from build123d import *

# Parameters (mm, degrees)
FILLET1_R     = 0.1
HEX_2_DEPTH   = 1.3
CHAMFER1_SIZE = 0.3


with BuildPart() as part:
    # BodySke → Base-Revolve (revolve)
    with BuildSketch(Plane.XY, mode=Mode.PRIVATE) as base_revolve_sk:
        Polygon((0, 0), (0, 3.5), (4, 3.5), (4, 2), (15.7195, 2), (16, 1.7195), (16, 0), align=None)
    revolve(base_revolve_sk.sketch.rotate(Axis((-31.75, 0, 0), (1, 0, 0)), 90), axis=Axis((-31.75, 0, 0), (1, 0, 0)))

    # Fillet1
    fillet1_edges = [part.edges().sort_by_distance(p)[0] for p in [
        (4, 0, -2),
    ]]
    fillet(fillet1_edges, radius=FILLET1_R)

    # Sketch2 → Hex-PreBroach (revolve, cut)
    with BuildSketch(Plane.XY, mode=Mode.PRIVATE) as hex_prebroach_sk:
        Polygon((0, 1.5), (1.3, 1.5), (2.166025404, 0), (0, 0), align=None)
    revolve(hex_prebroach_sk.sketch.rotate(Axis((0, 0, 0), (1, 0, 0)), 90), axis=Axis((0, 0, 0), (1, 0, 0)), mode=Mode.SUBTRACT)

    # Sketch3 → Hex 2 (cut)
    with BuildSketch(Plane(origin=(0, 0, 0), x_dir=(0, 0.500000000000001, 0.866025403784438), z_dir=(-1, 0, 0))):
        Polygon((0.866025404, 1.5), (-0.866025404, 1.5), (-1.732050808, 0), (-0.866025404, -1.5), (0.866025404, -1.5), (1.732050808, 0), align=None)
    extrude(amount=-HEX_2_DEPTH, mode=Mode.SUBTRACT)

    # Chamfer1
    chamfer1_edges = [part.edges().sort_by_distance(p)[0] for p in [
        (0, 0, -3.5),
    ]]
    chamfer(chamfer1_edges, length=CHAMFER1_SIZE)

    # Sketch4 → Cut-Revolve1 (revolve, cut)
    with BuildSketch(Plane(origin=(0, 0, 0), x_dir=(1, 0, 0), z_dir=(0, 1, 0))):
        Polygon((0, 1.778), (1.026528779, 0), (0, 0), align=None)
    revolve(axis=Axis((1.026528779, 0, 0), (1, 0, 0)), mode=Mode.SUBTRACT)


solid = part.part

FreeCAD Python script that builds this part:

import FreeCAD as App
import Part
import Sketcher

V = App.Vector
Q = App.Units.Quantity


def edges_at(feature, points):
    """Names of the edges that pass closest to the given points."""
    edges = feature.Shape.Edges
    near = lambda p: min(range(len(edges)), key=lambda i: edges[i].distToShape(Part.Vertex(*p))[0])
    return sorted({f"Edge{near(p) + 1}" for p in points})

doc = App.newDocument("Part")
body = doc.addObject("PartDesign::Body", "Body")

sketch1 = body.newObject("Sketcher::SketchObject", "Sketch")
sketch1.AttachmentSupport = (doc.getObject("XY_Plane"), [""])
sketch1.MapMode = "FlatFace"
sketch1.addGeometry([
    Part.LineSegment(V(0, 3.5, 0), V(0, 0, 0)),
    Part.LineSegment(V(0, 0, 0), V(16, 0, 0)),
    Part.LineSegment(V(16, 0, 0), V(16, 1.7195, 0)),
    Part.LineSegment(V(16, 1.7195, 0), V(15.7195, 2, 0)),
    Part.LineSegment(V(15.7195, 2, 0), V(4, 2, 0)),
    Part.LineSegment(V(4, 2, 0), V(4, 3.5, 0)),
    Part.LineSegment(V(4, 3.5, 0), V(0, 3.5, 0)),
], False)
sketch1.addConstraint([
    Sketcher.Constraint("Coincident", 0, 2, 1, 1),
    Sketcher.Constraint("Coincident", 1, 2, 2, 1),
    Sketcher.Constraint("Coincident", 2, 2, 3, 1),
    Sketcher.Constraint("Coincident", 3, 2, 4, 1),
    Sketcher.Constraint("Coincident", 4, 2, 5, 1),
    Sketcher.Constraint("Coincident", 5, 2, 6, 1),
    Sketcher.Constraint("Coincident", 6, 2, 0, 1),
    Sketcher.Constraint("Vertical", 0),
    Sketcher.Constraint("Horizontal", 1),
    Sketcher.Constraint("Vertical", 2),
    Sketcher.Constraint("Horizontal", 4),
    Sketcher.Constraint("Vertical", 5),
    Sketcher.Constraint("Horizontal", 6),
    Sketcher.Constraint("Coincident", 0, 2, -1, 1),
    Sketcher.Constraint("DistanceX", 1, 1, 1, 2, Q("16 mm")),
    Sketcher.Constraint("DistanceX", 6, 2, 6, 1, Q("4 mm")),
    Sketcher.Constraint("Angle", 3, Q("135 deg")),
    Sketcher.Constraint("DistanceY", 0, 2, 0, 1, Q("3.5 mm")),
    Sketcher.Constraint("DistanceY", 5, 1, 5, 2, Q("1.5 mm")),
    Sketcher.Constraint("DistanceX", 4, 2, 4, 1, Q("11.7195 mm")),
])
revolution = body.newObject("PartDesign::Revolution", "Revolution")
revolution.Profile = sketch1
revolution.ReferenceAxis = (sketch1, ["H_Axis"])
revolution.Angle = 360
doc.recompute()

fillet = body.newObject("PartDesign::Fillet", "Fillet")
fillet.Base = (revolution, edges_at(revolution, [(4, 0, -2)]))
fillet.Radius = 0.1

sketch2 = body.newObject("Sketcher::SketchObject", "Sketch001")
sketch2.AttachmentSupport = (doc.getObject("XY_Plane"), [""])
sketch2.MapMode = "FlatFace"
sketch2.addGeometry([
    Part.LineSegment(V(1.3, 1.5, 0), V(0, 1.5, 0)),
    Part.LineSegment(V(0, 1.5, 0), V(0, 0, 0)),
    Part.LineSegment(V(0, 0, 0), V(2.166025, 0, 0)),
    Part.LineSegment(V(2.166025, 0, 0), V(1.3, 1.5, 0)),
], False)
sketch2.addConstraint([
    Sketcher.Constraint("Coincident", 0, 2, 1, 1),
    Sketcher.Constraint("Coincident", 1, 2, 2, 1),
    Sketcher.Constraint("Coincident", 2, 2, 3, 1),
    Sketcher.Constraint("Coincident", 3, 2, 0, 1),
    Sketcher.Constraint("Horizontal", 0),
    Sketcher.Constraint("Vertical", 1),
    Sketcher.Constraint("Horizontal", 2),
    Sketcher.Constraint("Coincident", 1, 2, -1, 1),
    Sketcher.Constraint("Angle", 3, Q("120 deg")),
    Sketcher.Constraint("DistanceX", 0, 2, 0, 1, Q("1.3 mm")),
    Sketcher.Constraint("DistanceY", 1, 2, 1, 1, Q("1.5 mm")),
])
groove = body.newObject("PartDesign::Groove", "Groove")
groove.Profile = sketch2
groove.ReferenceAxis = (sketch2, ["H_Axis"])
groove.Angle = 360

sketch3 = body.newObject("Sketcher::SketchObject", "Sketch002")
sketch3.AttachmentSupport = (doc.getObject("YZ_Plane"), [""])
sketch3.MapMode = "FlatFace"
sketch3.addGeometry([
    Part.LineSegment(V(1.732051, 0, 0), V(0.866025, -1.5, 0)),
    Part.LineSegment(V(0.866025, -1.5, 0), V(-0.866025, -1.5, 0)),
    Part.LineSegment(V(-0.866025, -1.5, 0), V(-1.732051, 0, 0)),
    Part.LineSegment(V(-1.732051, 0, 0), V(-0.866025, 1.5, 0)),
    Part.LineSegment(V(-0.866025, 1.5, 0), V(0.866025, 1.5, 0)),
    Part.LineSegment(V(0.866025, 1.5, 0), V(1.732051, 0, 0)),
], False)
sketch3.addConstraint([
    Sketcher.Constraint("Coincident", 0, 2, 1, 1),
    Sketcher.Constraint("Coincident", 1, 2, 2, 1),
    Sketcher.Constraint("Coincident", 2, 2, 3, 1),
    Sketcher.Constraint("Coincident", 3, 2, 4, 1),
    Sketcher.Constraint("Coincident", 4, 2, 5, 1),
    Sketcher.Constraint("Coincident", 5, 2, 0, 1),
    Sketcher.Constraint("Horizontal", 1),
    Sketcher.Constraint("Horizontal", 4),
    Sketcher.Constraint("Symmetric", 0, 2, 3, 2, -1, 1),
    Sketcher.Constraint("Symmetric", 2, 2, 5, 2, -1, 1),
    Sketcher.Constraint("PointOnObject", 2, 2, -1),
    Sketcher.Constraint("Parallel", 2, 5),
    Sketcher.Constraint("Vertical", 1, 2, 3, 2),
    Sketcher.Constraint("Angle", 0, Q("-120 deg")),
    Sketcher.Constraint("DistanceY", 1, 2, 3, 2, Q("3 mm")),
    Sketcher.Constraint("DistanceX", 1, 2, 1, 1, Q("1.732051 mm")),
])
pocket1 = body.newObject("PartDesign::Pocket", "Pocket")
pocket1.Profile = sketch3
pocket1.Length = 1.3
pocket1.Reversed = True
doc.recompute()

chamfer = body.newObject("PartDesign::Chamfer", "Chamfer")
chamfer.Base = (pocket1, edges_at(pocket1, [(0, 0, -3.5)]))
chamfer.Size = 0.3

sketch4 = body.newObject("Sketcher::SketchObject", "Sketch003")
sketch4.AttachmentSupport = (doc.getObject("XZ_Plane"), [""])
sketch4.MapMode = "FlatFace"
sketch4.addGeometry([
    Part.LineSegment(V(1.026529, 0, 0), V(0, -1.778, 0)),
    Part.LineSegment(V(0, -1.778, 0), V(0, 0, 0)),
    Part.LineSegment(V(0, 0, 0), V(1.026529, 0, 0)),
], False)
sketch4.addConstraint([
    Sketcher.Constraint("Coincident", 0, 2, 1, 1),
    Sketcher.Constraint("Coincident", 1, 2, 2, 1),
    Sketcher.Constraint("Coincident", 2, 2, 0, 1),
    Sketcher.Constraint("Vertical", 1),
    Sketcher.Constraint("Horizontal", 2),
    Sketcher.Constraint("Coincident", 1, 2, -1, 1),
    Sketcher.Constraint("Angle", 0, Q("-120 deg")),
    Sketcher.Constraint("DistanceY", 1, 1, 1, 2, Q("1.778 mm")),
])
groove2 = body.newObject("PartDesign::Groove", "Groove001")
groove2.Profile = sketch4
groove2.ReferenceAxis = (sketch4, ["H_Axis"])
groove2.Angle = 360

doc.recompute()
